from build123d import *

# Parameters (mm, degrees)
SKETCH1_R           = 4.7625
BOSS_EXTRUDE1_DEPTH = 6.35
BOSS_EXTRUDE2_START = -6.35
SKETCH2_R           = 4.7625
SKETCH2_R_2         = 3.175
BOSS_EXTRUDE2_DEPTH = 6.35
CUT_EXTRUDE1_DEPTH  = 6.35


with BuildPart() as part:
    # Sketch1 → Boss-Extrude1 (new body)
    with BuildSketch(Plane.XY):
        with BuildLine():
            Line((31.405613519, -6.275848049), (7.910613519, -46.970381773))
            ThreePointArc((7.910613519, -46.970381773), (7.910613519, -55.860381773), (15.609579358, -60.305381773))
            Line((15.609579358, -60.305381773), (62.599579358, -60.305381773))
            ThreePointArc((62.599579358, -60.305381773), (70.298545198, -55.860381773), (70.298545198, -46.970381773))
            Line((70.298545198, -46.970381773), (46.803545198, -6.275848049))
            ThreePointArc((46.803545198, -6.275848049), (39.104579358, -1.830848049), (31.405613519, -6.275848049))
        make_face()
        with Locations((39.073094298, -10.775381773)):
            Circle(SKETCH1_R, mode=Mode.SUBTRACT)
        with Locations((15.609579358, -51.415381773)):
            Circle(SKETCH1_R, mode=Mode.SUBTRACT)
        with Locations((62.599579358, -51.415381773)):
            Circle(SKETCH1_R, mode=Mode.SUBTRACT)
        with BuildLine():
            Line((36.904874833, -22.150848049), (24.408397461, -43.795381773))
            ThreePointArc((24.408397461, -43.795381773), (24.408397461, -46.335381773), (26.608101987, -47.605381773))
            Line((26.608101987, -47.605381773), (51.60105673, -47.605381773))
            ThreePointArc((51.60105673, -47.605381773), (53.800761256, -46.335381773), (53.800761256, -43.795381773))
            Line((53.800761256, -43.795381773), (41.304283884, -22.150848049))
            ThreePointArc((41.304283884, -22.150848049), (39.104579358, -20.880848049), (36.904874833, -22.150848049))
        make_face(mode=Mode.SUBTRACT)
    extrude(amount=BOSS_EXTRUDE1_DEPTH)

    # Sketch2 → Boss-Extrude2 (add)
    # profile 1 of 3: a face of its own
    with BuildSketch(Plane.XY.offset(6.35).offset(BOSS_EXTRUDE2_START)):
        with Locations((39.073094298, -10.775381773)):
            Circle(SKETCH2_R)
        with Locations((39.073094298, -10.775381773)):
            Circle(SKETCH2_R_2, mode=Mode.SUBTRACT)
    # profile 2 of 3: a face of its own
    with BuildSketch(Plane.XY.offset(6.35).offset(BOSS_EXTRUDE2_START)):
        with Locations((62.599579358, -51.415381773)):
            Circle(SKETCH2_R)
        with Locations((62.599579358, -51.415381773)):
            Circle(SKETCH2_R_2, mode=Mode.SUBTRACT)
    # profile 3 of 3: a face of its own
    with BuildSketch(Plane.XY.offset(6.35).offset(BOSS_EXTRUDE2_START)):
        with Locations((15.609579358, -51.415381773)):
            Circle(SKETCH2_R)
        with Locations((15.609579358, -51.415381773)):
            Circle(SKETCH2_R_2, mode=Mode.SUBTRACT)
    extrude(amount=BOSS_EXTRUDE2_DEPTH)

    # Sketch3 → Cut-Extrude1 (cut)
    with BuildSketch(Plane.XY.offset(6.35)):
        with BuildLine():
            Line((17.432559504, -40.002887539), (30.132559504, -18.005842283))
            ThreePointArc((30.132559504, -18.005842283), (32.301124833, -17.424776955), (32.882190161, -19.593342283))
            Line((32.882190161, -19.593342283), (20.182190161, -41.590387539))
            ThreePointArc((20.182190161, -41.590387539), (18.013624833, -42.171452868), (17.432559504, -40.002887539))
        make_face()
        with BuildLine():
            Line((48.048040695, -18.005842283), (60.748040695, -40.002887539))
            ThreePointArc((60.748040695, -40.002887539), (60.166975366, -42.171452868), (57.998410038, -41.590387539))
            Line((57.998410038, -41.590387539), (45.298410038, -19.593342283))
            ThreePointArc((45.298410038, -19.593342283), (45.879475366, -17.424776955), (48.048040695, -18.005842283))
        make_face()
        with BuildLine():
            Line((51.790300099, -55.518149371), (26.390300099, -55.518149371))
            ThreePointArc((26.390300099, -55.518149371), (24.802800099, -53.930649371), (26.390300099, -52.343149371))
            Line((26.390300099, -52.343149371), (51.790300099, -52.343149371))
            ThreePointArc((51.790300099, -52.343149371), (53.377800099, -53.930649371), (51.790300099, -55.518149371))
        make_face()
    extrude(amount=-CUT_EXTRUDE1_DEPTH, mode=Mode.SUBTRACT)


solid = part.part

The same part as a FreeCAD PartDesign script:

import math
import FreeCAD as App
import Part
import Sketcher

V = App.Vector
Q = App.Units.Quantity

doc = App.newDocument("Part")
body = doc.addObject("PartDesign::Body", "Body")

# Sketch on XY plane
sketch1 = body.newObject("Sketcher::SketchObject", "Sketch")
sketch1.AttachmentSupport = (doc.getObject("XY_Plane"), [""])
sketch1.MapMode = "FlatFace"
sketch1.addGeometry(Part.LineSegment(V(31.4, -6.3, 0), V(7.9, -47, 0)), False)
sketch1.addGeometry(Part.ArcOfCircle(Part.Circle(V(15.6, -51.4, 0), V(0, 0, 1), 8.9), math.radians(150), math.radians(270)), False)
sketch1.addGeometry(Part.LineSegment(V(15.6, -60.3, 0), V(62.6, -60.3, 0)), False)
sketch1.addGeometry(Part.ArcOfCircle(Part.Circle(V(62.6, -51.4, 0), V(0, 0, 1), 8.9), math.radians(-90), math.radians(30)), False)
sketch1.addGeometry(Part.LineSegment(V(70.3, -47, 0), V(46.8, -6.3, 0)), False)
sketch1.addGeometry(Part.ArcOfCircle(Part.Circle(V(39.1, -10.7, 0), V(0, 0, 1), 8.9), math.radians(30), math.radians(150)), False)
sketch1.addGeometry(Part.Circle(V(15.6, -51.4, 0), V(0, 0, 1), 4.8), False)
sketch1.addGeometry(Part.Circle(V(62.6, -51.4, 0), V(0, 0, 1), 4.8), False)
sketch1.addGeometry(Part.LineSegment(V(24.4, -43.8, 0), V(36.9, -22.2, 0)), False)
sketch1.addGeometry(Part.ArcOfCircle(Part.Circle(V(39.1, -23.4, 0), V(0, 0, 1), 2.5), math.radians(30), math.radians(150)), False)
sketch1.addGeometry(Part.LineSegment(V(41.3, -22.2, 0), V(53.8, -43.8, 0)), False)
sketch1.addGeometry(Part.ArcOfCircle(Part.Circle(V(51.6, -45.1, 0), V(0, 0, 1), 2.5), math.radians(-90), math.radians(30)), False)
sketch1.addGeometry(Part.LineSegment(V(51.6, -47.6, 0), V(26.6, -47.6, 0)), False)
sketch1.addGeometry(Part.ArcOfCircle(Part.Circle(V(26.6, -45.1, 0), V(0, 0, 1), 2.5), math.radians(150), math.radians(270)), False)
sketch1.addGeometry(Part.Circle(V(39.1, -10.8, 0), V(0, 0, 1), 4.8), False)
sketch1.addConstraint(Sketcher.Constraint("Tangent", 0, 2, 1, 1))
sketch1.addConstraint(Sketcher.Constraint("Tangent", 1, 2, 2, 1))
sketch1.addConstraint(Sketcher.Constraint("Tangent", 2, 2, 3, 1))
sketch1.addConstraint(Sketcher.Constraint("Tangent", 3, 2, 4, 1))
sketch1.addConstraint(Sketcher.Constraint("Tangent", 4, 2, 5, 1))
sketch1.addConstraint(Sketcher.Constraint("Tangent", 5, 2, 0, 1))
sketch1.addConstraint(Sketcher.Constraint("Tangent", 8, 2, 9, 2))
sketch1.addConstraint(Sketcher.Constraint("Tangent", 9, 1, 10, 1))
sketch1.addConstraint(Sketcher.Constraint("Tangent", 10, 2, 11, 2))
sketch1.addConstraint(Sketcher.Constraint("Tangent", 11, 1, 12, 1))
sketch1.addConstraint(Sketcher.Constraint("Tangent", 12, 2, 13, 2))
sketch1.addConstraint(Sketcher.Constraint("Tangent", 13, 1, 8, 1))
sketch1.addConstraint(Sketcher.Constraint("Horizontal", 2))
sketch1.addConstraint(Sketcher.Constraint("Horizontal", 12))
sketch1.addConstraint(Sketcher.Constraint("Coincident", 6, 3, 1, 3))
sketch1.addConstraint(Sketcher.Constraint("Coincident", 7, 3, 3, 3))
sketch1.addConstraint(Sketcher.Constraint("Equal", 1, 3))
sketch1.addConstraint(Sketcher.Constraint("Equal", 3, 5))
sketch1.addConstraint(Sketcher.Constraint("Equal", 6, 7))
sketch1.addConstraint(Sketcher.Constraint("Equal", 9, 11))
sketch1.addConstraint(Sketcher.Constraint("Equal", 11, 13))
sketch1.addConstraint(Sketcher.Constraint("Equal", 7, 14))
sketch1.addConstraint(Sketcher.Constraint("Parallel", 0, 8))
sketch1.addConstraint(Sketcher.Constraint("Parallel", 4, 10))
sketch1.addConstraint(Sketcher.Constraint("Horizontal", 0, 2, 3, 2))
sketch1.addConstraint(Sketcher.Constraint("Vertical", 5, 3, 9, 3))
sketch1.addConstraint(Sketcher.Constraint("Radius", 9, Q("0.1 in")))
sketch1.addConstraint(Sketcher.Constraint("Radius", 1, Q("0.35 in")))
sketch1.addConstraint(Sketcher.Constraint("Diameter", 6, Q("0.375 in")))
sketch1.addConstraint(Sketcher.Constraint("Angle", 0, Q("-120 deg")))
sketch1.addConstraint(Sketcher.Constraint("DistanceX", 2, 1, 2, 2, Q("1.85 in")))
sketch1.addConstraint(Sketcher.Constraint("DistanceY", 9, 3, 5, 3, Q("0.5 in")))
sketch1.addConstraint(Sketcher.Constraint("DistanceY", 1, 3, 14, 3, Q("1.6 in")))
sketch1.addConstraint(Sketcher.Constraint("DistanceY", 1, 2, 13, 3, Q("0.6 in")))
sketch1.addConstraint(Sketcher.Constraint("DistanceX", -1, 1, 13, 3, Q("26.608102 mm")))
sketch1.addConstraint(Sketcher.Constraint("DistanceY", 1, 3, -1, 1, Q("51.415382 mm")))
sketch1.addConstraint(Sketcher.Constraint("DistanceX", 14, 3, 4, 2, Q("7.730451 mm")))
pad1 = body.newObject("PartDesign::Pad", "Pad")
pad1.Profile = sketch1
pad1.Length = Q("0.25 in")

# Sketch on XY plane
sketch2 = body.newObject("Sketcher::SketchObject", "Sketch001")
sketch2.AttachmentSupport = (doc.getObject("XY_Plane"), [""])
sketch2.MapMode = "FlatFace"
sketch2.addGeometry(Part.Circle(V(39.1, -10.8, 0), V(0, 0, 1), 4.8), False)
sketch2.addGeometry(Part.Circle(V(39.1, -10.8, 0), V(0, 0, 1), 3.2), False)
sketch2.addGeometry(Part.Circle(V(62.6, -51.4, 0), V(0, 0, 1), 4.8), False)
sketch2.addGeometry(Part.Circle(V(62.6, -51.4, 0), V(0, 0, 1), 3.2), False)
sketch2.addGeometry(Part.Circle(V(15.6, -51.4, 0), V(0, 0, 1), 4.8), False)
sketch2.addGeometry(Part.Circle(V(15.6, -51.4, 0), V(0, 0, 1), 3.2), False)
sketch2.addConstraint(Sketcher.Constraint("Coincident", 1, 3, 0, 3))
sketch2.addConstraint(Sketcher.Constraint("Coincident", 3, 3, 2, 3))
sketch2.addConstraint(Sketcher.Constraint("Coincident", 5, 3, 4, 3))
sketch2.addConstraint(Sketcher.Constraint("Equal", 0, 2))
sketch2.addConstraint(Sketcher.Constraint("Equal", 1, 3))
sketch2.addConstraint(Sketcher.Constraint("Equal", 2, 4))
sketch2.addConstraint(Sketcher.Constraint("Equal", 3, 5))
sketch2.addConstraint(Sketcher.Constraint("Horizontal", 3, 3, 4, 3))
sketch2.addConstraint(Sketcher.Constraint("Diameter", 1, Q("0.25 in")))
sketch2.addConstraint(Sketcher.Constraint("Diameter", 0, Q("0.375 in")))
sketch2.addConstraint(Sketcher.Constraint("DistanceY", 2, 3, 0, 3, Q("1.6 in")))
sketch2.addConstraint(Sketcher.Constraint("DistanceX", 4, 3, 2, 3, Q("1.85 in")))
sketch2.addConstraint(Sketcher.Constraint("DistanceY", 0, 3, -1, 1, Q("10.775382 mm")))
sketch2.addConstraint(Sketcher.Constraint("DistanceX", -1, 1, 2, 3, Q("62.599579 mm")))
sketch2.addConstraint(Sketcher.Constraint("DistanceX", -1, 1, 0, 3, Q("39.073094 mm")))
pad2 = body.newObject("PartDesign::Pad", "Pad001")
pad2.Profile = sketch2
pad2.Length = Q("0.25 in")

# Sketch on XY plane
sketch3 = body.newObject("Sketcher::SketchObject", "Sketch002")
sketch3.AttachmentSupport = (doc.getObject("XY_Plane"), [""])
sketch3.MapMode = "FlatFace"
sketch3.AttachmentOffset = App.Placement(V(0, 0, 0.25 * 25.4), App.Rotation())
sketch3.addGeometry(Part.LineSegment(V(30.1, -18, 0), V(17.4, -40, 0)), False)
sketch3.addGeometry(Part.ArcOfCircle(Part.Circle(V(18.8, -40.8, 0), V(0, 0, 1), 1.6), math.radians(150), math.radians(330)), False)
sketch3.addGeometry(Part.LineSegment(V(20.2, -41.6, 0), V(32.9, -19.6, 0)), False)
sketch3.addGeometry(Part.ArcOfCircle(Part.Circle(V(31.5, -18.8, 0), V(0, 0, 1), 1.6), math.radians(-30), math.radians(150)), False)
sketch3.addGeometry(Part.LineSegment(V(60.7, -40, 0), V(48, -18, 0)), False)
sketch3.addGeometry(Part.ArcOfCircle(Part.Circle(V(46.7, -18.8, 0), V(0, 0, 1), 1.6), math.radians(30), math.radians(210)), False)
sketch3.addGeometry(Part.LineSegment(V(45.3, -19.6, 0), V(58, -41.6, 0)), False)
sketch3.addGeometry(Part.ArcOfCircle(Part.Circle(V(59.4, -40.8, 0), V(0, 0, 1), 1.6), math.radians(-150), math.radians(30)), False)
sketch3.addGeometry(Part.LineSegment(V(26.4, -55.5, 0), V(51.8, -55.5, 0)), False)
sketch3.addGeometry(Part.ArcOfCircle(Part.Circle(V(51.8, -53.9, 0), V(0, 0, 1), 1.6), math.radians(-90), math.radians(90)), False)
sketch3.addGeometry(Part.LineSegment(V(51.8, -52.3, 0), V(26.4, -52.3, 0)), False)
sketch3.addGeometry(Part.ArcOfCircle(Part.Circle(V(26.4, -53.9, 0), V(0, 0, 1), 1.6), math.radians(90), math.radians(270)), False)
sketch3.addConstraint(Sketcher.Constraint("Tangent", 0, 2, 1, 1))
sketch3.addConstraint(Sketcher.Constraint("Tangent", 1, 2, 2, 1))
sketch3.addConstraint(Sketcher.Constraint("Tangent", 2, 2, 3, 1))
sketch3.addConstraint(Sketcher.Constraint("Tangent", 3, 2, 0, 1))
sketch3.addConstraint(Sketcher.Constraint("Tangent", 4, 2, 5, 1))
sketch3.addConstraint(Sketcher.Constraint("Tangent", 5, 2, 6, 1))
sketch3.addConstraint(Sketcher.Constraint("Tangent", 6, 2, 7, 1))
sketch3.addConstraint(Sketcher.Constraint("Tangent", 7, 2, 4, 1))
sketch3.addConstraint(Sketcher.Constraint("Tangent", 8, 2, 9, 1))
sketch3.addConstraint(Sketcher.Constraint("Tangent", 9, 2, 10, 1))
sketch3.addConstraint(Sketcher.Constraint("Tangent", 10, 2, 11, 1))
sketch3.addConstraint(Sketcher.Constraint("Tangent", 11, 2, 8, 1))
sketch3.addConstraint(Sketcher.Constraint("Horizontal", 8))
sketch3.addConstraint(Sketcher.Constraint("Horizontal", 10))
sketch3.addConstraint(Sketcher.Constraint("Equal", 1, 3))
sketch3.addConstraint(Sketcher.Constraint("Equal", 3, 5))
sketch3.addConstraint(Sketcher.Constraint("Equal", 5, 7))
sketch3.addConstraint(Sketcher.Constraint("Equal", 7, 9))
sketch3.addConstraint(Sketcher.Constraint("Horizontal", 3, 3, 5, 3))
sketch3.addConstraint(Sketcher.Constraint("Horizontal", 1, 3, 7, 3))
sketch3.addConstraint(Sketcher.Constraint("Horizontal", 3, 2, 4, 2))
sketch3.addConstraint(Sketcher.Constraint("DistanceX", 8, 1, 8, 2, Q("1 in")))
sketch3.addConstraint(Sketcher.Constraint("Distance", 0, Q("1 in")))
sketch3.addConstraint(Sketcher.Constraint("Angle", 0, Q("-120 deg")))
sketch3.addConstraint(Sketcher.Constraint("Radius", 1, Q("0.0625 in")))
sketch3.addConstraint(Sketcher.Constraint("DistanceX", -1, 1, 9, 3, Q("51.7903 mm")))
sketch3.addConstraint(Sketcher.Constraint("DistanceY", 9, 3, -1, 1, Q("53.930649 mm")))
sketch3.addConstraint(Sketcher.Constraint("DistanceX", -1, 1, 0, 2, Q("17.43256 mm")))
sketch3.addConstraint(Sketcher.Constraint("DistanceX", -1, 1, 4, 2, Q("48.048041 mm")))
sketch3.addConstraint(Sketcher.Constraint("DistanceY", 9, 3, 7, 3, Q("13.134012 mm")))
pocket1 = body.newObject("PartDesign::Pocket", "Pocket")
pocket1.Profile = sketch3
pocket1.Length = Q("0.25 in")

doc.recompute()
